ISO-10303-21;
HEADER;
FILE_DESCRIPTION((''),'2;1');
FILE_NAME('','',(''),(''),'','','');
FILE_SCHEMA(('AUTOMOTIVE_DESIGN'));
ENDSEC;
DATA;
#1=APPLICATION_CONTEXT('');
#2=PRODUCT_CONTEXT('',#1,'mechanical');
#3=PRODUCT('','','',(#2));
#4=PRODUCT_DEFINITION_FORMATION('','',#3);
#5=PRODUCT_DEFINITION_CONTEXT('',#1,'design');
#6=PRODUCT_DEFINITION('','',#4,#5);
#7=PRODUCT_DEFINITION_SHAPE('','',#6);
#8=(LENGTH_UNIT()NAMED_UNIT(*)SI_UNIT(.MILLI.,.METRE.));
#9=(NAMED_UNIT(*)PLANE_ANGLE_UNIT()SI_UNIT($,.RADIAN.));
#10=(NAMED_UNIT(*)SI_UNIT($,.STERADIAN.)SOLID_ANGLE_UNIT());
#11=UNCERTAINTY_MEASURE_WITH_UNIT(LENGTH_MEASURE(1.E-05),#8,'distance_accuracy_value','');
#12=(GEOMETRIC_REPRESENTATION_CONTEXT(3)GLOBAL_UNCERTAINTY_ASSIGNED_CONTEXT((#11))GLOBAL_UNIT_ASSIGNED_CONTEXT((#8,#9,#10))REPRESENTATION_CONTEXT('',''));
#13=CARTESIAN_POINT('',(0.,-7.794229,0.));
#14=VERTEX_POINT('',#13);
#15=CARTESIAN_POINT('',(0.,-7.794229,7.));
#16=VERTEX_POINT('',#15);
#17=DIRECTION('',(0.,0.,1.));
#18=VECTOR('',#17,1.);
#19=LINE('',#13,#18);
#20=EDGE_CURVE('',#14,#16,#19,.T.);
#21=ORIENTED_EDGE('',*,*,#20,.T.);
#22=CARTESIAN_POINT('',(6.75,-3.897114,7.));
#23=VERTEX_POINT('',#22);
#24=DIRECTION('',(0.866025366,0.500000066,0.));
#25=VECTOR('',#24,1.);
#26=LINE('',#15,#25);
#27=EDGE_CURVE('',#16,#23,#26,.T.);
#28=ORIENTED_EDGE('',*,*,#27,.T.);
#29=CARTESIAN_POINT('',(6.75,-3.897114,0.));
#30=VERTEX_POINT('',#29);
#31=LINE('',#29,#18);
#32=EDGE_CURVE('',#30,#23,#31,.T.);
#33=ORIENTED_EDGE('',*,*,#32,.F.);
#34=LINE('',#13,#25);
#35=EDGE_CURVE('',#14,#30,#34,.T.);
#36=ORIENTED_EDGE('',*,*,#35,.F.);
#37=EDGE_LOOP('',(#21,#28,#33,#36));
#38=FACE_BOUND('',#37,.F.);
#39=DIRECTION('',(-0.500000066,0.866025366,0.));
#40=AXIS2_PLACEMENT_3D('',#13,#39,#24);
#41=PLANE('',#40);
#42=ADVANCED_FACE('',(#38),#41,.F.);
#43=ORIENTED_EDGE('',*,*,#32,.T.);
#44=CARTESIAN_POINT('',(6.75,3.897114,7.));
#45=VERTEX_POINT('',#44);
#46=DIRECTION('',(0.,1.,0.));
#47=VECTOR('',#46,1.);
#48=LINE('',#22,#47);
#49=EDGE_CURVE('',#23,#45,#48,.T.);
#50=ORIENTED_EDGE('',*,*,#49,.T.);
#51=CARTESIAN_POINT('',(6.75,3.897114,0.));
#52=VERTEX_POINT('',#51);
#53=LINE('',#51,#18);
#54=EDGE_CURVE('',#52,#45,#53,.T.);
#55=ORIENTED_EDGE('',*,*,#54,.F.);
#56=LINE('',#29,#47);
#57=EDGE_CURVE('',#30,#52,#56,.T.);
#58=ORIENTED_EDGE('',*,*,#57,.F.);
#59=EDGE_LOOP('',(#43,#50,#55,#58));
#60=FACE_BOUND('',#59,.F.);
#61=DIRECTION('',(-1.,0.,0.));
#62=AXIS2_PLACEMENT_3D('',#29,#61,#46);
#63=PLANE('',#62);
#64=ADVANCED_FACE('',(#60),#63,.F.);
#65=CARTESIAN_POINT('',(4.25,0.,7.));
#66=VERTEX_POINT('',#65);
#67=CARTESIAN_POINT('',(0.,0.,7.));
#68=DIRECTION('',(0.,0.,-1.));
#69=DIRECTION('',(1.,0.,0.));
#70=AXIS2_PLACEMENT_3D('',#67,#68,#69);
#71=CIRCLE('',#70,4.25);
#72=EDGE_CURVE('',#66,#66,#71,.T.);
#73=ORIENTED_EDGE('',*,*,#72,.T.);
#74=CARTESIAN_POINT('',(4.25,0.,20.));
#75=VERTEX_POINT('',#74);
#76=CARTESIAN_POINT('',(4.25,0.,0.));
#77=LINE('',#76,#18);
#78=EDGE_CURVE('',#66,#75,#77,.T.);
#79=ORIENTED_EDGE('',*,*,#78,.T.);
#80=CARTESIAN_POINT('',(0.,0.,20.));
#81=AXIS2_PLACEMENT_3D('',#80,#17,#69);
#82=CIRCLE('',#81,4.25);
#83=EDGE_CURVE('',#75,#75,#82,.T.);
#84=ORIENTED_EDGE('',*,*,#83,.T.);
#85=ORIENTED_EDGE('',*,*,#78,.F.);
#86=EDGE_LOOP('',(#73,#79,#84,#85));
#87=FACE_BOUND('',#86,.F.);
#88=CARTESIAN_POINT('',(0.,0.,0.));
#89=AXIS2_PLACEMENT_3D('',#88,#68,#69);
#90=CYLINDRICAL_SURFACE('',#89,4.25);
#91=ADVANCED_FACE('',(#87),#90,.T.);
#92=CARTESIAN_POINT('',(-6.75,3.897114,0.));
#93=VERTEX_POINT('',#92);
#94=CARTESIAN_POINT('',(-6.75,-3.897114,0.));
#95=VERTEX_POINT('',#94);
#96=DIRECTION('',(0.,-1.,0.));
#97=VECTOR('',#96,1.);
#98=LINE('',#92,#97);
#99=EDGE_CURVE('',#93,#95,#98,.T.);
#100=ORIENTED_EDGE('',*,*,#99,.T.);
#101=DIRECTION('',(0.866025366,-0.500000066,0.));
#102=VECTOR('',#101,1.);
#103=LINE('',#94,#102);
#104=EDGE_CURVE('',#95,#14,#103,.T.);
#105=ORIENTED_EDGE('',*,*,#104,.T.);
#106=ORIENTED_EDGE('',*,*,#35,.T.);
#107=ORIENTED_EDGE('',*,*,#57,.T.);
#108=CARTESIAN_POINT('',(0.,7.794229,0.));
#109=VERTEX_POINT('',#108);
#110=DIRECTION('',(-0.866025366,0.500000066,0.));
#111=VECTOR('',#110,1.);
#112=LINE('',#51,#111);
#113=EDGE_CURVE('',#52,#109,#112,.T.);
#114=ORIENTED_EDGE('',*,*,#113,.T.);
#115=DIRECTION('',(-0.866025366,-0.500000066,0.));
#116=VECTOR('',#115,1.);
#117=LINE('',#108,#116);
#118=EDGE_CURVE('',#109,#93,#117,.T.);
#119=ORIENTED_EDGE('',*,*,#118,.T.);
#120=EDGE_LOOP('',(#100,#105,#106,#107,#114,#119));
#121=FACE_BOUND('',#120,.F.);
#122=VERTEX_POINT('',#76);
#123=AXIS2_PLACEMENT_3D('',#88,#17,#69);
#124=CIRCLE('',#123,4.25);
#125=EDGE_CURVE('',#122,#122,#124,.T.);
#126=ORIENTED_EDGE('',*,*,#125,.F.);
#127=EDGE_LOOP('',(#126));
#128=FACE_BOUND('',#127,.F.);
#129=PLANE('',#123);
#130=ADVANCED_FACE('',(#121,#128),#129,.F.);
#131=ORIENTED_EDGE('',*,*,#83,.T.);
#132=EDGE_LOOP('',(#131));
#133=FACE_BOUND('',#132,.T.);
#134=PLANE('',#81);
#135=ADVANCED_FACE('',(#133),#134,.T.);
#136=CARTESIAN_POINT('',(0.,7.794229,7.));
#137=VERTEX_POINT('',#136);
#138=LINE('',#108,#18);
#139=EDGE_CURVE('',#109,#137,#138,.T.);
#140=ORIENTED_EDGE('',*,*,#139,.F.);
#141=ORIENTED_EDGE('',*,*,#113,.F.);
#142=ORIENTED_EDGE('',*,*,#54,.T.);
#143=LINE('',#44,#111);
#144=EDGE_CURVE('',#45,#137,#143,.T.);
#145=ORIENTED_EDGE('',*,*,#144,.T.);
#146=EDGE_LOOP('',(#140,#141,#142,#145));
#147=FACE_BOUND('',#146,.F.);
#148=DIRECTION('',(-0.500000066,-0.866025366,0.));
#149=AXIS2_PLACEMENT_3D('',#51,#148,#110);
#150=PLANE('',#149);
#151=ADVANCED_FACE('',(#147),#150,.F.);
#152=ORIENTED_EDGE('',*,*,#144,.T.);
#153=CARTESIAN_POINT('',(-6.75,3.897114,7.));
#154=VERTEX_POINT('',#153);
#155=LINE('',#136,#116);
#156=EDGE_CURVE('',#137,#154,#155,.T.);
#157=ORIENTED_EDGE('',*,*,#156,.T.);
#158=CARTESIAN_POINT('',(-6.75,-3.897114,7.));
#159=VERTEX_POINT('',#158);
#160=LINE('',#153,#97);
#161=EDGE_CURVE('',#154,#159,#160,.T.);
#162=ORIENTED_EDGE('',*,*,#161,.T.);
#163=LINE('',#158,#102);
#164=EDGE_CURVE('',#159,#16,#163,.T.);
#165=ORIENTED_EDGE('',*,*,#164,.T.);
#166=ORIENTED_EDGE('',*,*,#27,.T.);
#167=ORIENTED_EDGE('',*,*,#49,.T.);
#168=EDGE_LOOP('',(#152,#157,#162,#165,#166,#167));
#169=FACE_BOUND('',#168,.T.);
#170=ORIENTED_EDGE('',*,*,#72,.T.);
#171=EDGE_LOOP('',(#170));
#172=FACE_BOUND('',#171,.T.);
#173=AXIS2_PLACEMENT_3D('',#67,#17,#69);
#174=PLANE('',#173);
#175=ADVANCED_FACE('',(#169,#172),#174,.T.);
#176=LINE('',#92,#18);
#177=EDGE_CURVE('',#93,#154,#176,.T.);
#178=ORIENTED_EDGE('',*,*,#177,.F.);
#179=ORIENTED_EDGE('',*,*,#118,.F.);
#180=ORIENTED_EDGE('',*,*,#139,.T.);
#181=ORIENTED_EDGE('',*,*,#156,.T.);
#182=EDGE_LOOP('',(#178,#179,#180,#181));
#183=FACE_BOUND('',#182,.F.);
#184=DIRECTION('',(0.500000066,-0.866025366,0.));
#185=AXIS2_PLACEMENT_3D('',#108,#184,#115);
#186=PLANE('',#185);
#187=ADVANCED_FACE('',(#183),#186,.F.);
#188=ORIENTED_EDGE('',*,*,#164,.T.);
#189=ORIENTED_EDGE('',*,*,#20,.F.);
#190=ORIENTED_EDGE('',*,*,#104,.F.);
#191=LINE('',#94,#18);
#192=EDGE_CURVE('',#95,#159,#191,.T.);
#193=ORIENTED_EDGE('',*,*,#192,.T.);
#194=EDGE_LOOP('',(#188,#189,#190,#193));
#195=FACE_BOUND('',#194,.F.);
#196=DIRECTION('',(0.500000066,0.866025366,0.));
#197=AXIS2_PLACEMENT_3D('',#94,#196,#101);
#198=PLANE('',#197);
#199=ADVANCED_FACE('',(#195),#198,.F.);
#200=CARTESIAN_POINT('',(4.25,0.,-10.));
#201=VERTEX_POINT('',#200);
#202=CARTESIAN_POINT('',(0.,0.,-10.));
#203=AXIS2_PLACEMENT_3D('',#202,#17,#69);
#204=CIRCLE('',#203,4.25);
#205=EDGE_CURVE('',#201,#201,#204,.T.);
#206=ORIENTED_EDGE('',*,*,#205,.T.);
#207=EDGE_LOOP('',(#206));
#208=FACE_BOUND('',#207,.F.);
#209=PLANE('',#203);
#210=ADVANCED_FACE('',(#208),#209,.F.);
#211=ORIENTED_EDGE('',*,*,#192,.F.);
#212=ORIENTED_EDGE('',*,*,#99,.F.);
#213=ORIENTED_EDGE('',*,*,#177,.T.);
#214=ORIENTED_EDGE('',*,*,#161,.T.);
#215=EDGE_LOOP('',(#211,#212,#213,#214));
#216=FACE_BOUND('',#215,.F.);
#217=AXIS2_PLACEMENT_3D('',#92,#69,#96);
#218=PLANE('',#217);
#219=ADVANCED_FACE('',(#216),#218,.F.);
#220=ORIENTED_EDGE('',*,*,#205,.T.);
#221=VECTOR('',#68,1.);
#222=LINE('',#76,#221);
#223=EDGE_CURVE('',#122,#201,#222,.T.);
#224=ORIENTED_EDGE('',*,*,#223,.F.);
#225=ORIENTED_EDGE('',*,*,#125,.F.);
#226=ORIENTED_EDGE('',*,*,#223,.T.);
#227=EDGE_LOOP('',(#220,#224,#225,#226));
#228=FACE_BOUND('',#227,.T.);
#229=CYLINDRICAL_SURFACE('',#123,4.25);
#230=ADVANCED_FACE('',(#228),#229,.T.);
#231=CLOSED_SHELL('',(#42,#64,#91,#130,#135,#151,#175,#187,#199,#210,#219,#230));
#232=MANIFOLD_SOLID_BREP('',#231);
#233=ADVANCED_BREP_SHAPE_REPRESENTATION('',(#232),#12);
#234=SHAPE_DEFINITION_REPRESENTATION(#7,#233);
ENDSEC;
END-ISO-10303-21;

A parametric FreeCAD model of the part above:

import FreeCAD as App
import Part
import Sketcher

V = App.Vector
Q = App.Units.Quantity


def add_polygon(sketch, points):
    """Adds a closed chain of lines whose ends are joined by coincident constraints."""
    first, n = sketch.GeometryCount, len(points)
    for a, b in zip(points, points[1:] + points[:1]):
        sketch.addGeometry(Part.LineSegment(App.Vector(*a, 0), App.Vector(*b, 0)), False)
    for i in range(n):
        sketch.addConstraint(Sketcher.Constraint("Coincident", first + i, 2, first + (i + 1) % n, 1))

doc = App.newDocument("Part")
params = doc.addObject("Spreadsheet::Sheet", "Params")
for row, (alias, value) in enumerate([
    ("pad1_length", "7 mm"),
    ("sketch2_diameter", "8.5 mm"),
    ("pad2_length", "20 mm"),
    ("pad2_length2", "10 mm"),
], start=1):
    params.set(f"A{row}", alias)
    params.set(f"B{row}", "=" + value)
    params.setAlias(f"B{row}", alias)

body = doc.addObject("PartDesign::Body", "Body")

# Sketch on XY plane
sketch1 = body.newObject("Sketcher::SketchObject", "Sketch")
sketch1.AttachmentSupport = (doc.getObject("XY_Plane"), [""])
sketch1.MapMode = "FlatFace"
add_polygon(sketch1, [(0, -8), (7, -4), (7, 4), (0, 8), (-7, 4), (-7, -4)])  # lines 0-5
sketch1.addConstraint([
    Sketcher.Constraint("Vertical", 1),
    Sketcher.Constraint("Vertical", 4),
    Sketcher.Constraint("Symmetric", 0, 2, 3, 2, -1, 1),
    Sketcher.Constraint("Symmetric", 2, 2, 5, 2, -1, 1),
    Sketcher.Constraint("PointOnObject", 2, 2, -2),
    Sketcher.Constraint("Parallel", 2, 5),
    Sketcher.Constraint("Horizontal", 1, 2, 3, 2),
    Sketcher.Constraint("Angle", 0, Q("30.000004 deg")),
    Sketcher.Constraint("DistanceX", 3, 2, 1, 2, 13.5),
    Sketcher.Constraint("DistanceY", 1, 1, 1, 2, 7.794228),
])
pad1 = body.newObject("PartDesign::Pad", "Pad")
pad1.Profile = sketch1
pad1.setExpression("Length", "Params.pad1_length")

# Sketch on XY plane
sketch2 = body.newObject("Sketcher::SketchObject", "Sketch001")
sketch2.AttachmentSupport = (doc.getObject("XY_Plane"), [""])
sketch2.MapMode = "FlatFace"
sketch2.addGeometry(Part.Circle(V(0, 0, 0), V(0, 0, 1), 4.2), False)
sketch2.addConstraint([
    Sketcher.Constraint("Coincident", 0, 3, -1, 1),
    Sketcher.Constraint("Diameter", 0, 8.5),
])
sketch2.setExpression("Constraints[1]", "Params.sketch2_diameter")
pad2 = body.newObject("PartDesign::Pad", "Pad001")
pad2.Profile = sketch2
pad2.Type = "TwoLengths"
pad2.setExpression("Length", "Params.pad2_length")
pad2.setExpression("Length2", "Params.pad2_length2")

doc.recompute()
